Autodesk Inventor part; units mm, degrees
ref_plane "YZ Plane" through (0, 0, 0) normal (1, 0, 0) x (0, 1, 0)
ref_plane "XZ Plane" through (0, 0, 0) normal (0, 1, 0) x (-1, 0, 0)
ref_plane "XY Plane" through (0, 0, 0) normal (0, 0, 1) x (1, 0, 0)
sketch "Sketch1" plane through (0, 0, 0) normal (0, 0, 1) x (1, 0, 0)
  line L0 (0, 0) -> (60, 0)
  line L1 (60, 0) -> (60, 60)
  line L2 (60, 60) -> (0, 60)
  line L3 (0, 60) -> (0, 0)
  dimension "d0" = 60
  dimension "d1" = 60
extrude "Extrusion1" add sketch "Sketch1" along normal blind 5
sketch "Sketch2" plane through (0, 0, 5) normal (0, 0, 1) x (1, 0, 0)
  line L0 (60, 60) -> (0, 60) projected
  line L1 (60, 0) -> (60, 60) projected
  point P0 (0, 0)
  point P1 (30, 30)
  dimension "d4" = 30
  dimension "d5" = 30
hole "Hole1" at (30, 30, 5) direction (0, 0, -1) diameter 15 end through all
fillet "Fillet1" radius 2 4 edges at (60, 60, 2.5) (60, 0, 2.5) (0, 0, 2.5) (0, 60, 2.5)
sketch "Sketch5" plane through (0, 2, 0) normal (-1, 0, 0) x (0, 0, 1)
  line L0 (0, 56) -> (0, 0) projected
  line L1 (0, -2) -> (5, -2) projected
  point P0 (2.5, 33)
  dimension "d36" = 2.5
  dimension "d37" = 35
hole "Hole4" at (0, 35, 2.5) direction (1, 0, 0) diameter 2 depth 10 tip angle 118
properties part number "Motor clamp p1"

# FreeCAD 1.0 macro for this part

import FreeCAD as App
import Part
import Sketcher


def edges_at(feature, points):
    """Names of the edges that pass closest to the given points."""
    edges = feature.Shape.Edges
    near = lambda p: min(range(len(edges)), key=lambda i: edges[i].distToShape(Part.Vertex(*p))[0])
    return sorted({f"Edge{near(p) + 1}" for p in points})


def add_polygon(sketch, points):
    """Adds a closed chain of lines whose ends are joined by coincident constraints."""
    first, n = sketch.GeometryCount, len(points)
    for a, b in zip(points, points[1:] + points[:1]):
        sketch.addGeometry(Part.LineSegment(App.Vector(*a, 0), App.Vector(*b, 0)), False)
    for i in range(n):
        sketch.addConstraint(Sketcher.Constraint("Coincident", first + i, 2, first + (i + 1) % n, 1))

doc = App.newDocument("Part")
body = doc.addObject("PartDesign::Body", "Body")

# Sketch on XY plane
sketch1 = body.newObject("Sketcher::SketchObject", "Sketch")
sketch1.AttachmentSupport = (doc.getObject("XY_Plane"), [""])
sketch1.MapMode = "FlatFace"
add_polygon(sketch1, [(0, 60), (0, 0), (60, 0), (60, 60)])  # lines 0-3
sketch1.addConstraint(Sketcher.Constraint("Vertical", 0))
sketch1.addConstraint(Sketcher.Constraint("Horizontal", 1))
sketch1.addConstraint(Sketcher.Constraint("Vertical", 2))
sketch1.addConstraint(Sketcher.Constraint("Horizontal", 3))
sketch1.addConstraint(Sketcher.Constraint("Coincident", 0, 2, -1, 1))
sketch1.addConstraint(Sketcher.Constraint("Equal", 3, 0))
sketch1.addConstraint(Sketcher.Constraint("DistanceX", 1, 1, 1, 2, 60.0))
pad1 = body.newObject("PartDesign::Pad", "Pad")
pad1.Profile = sketch1
pad1.Length = 5

# Sketch on XY plane
sketch2 = body.newObject("Sketcher::SketchObject", "Sketch001")
sketch2.AttachmentSupport = (doc.getObject("XY_Plane"), [""])
sketch2.MapMode = "FlatFace"
sketch2.AttachmentOffset = App.Placement(App.Vector(0, 0, 5), App.Rotation())
sketch2.addGeometry(Part.Circle(App.Vector(30, 30, 0), App.Vector(0, 0, 1), 8), False)
sketch2.addConstraint(Sketcher.Constraint("Diameter", 0, 15.0))
sketch2.addConstraint(Sketcher.Constraint("DistanceX", -1, 1, 0, 3, 30.0))
sketch2.addConstraint(Sketcher.Constraint("DistanceY", -1, 1, 0, 3, 30.0))
doc.recompute()
hole = body.newObject("PartDesign::Hole", "Hole")
hole.Profile = sketch2
hole.ThreadType = "None"
hole.Diameter = 15
hole.DepthType = "ThroughAll"
doc.recompute()

fillet = body.newObject("PartDesign::Fillet", "Fillet")
fillet.Base = (hole, edges_at(hole, [
    (60, 60, 2.5),
    (60, 0, 2.5),
    (0, 0, 2.5),
    (0, 60, 2.5),
]))
fillet.Radius = 2

# Sketch on YZ plane
sketch3 = body.newObject("Sketcher::SketchObject", "Sketch002")
sketch3.AttachmentSupport = (doc.getObject("YZ_Plane"), [""])
sketch3.MapMode = "FlatFace"
sketch3.addGeometry(Part.Circle(App.Vector(35, 2.5, 0), App.Vector(0, 0, 1), 1), False)
sketch3.addConstraint(Sketcher.Constraint("Diameter", 0, 2.0))
sketch3.addConstraint(Sketcher.Constraint("DistanceX", -1, 1, 0, 3, 35.0))
sketch3.addConstraint(Sketcher.Constraint("DistanceY", -1, 1, 0, 3, 2.5))
doc.recompute()
hole2 = body.newObject("PartDesign::Hole", "Hole001")
hole2.Profile = sketch3
hole2.ThreadType = "None"
hole2.Diameter = 2
hole2.DepthType = "Dimension"
hole2.Depth = 10
hole2.DrillPoint = "Angled"
hole2.DrillPointAngle = 118
hole2.Reversed = True

doc.recompute()
